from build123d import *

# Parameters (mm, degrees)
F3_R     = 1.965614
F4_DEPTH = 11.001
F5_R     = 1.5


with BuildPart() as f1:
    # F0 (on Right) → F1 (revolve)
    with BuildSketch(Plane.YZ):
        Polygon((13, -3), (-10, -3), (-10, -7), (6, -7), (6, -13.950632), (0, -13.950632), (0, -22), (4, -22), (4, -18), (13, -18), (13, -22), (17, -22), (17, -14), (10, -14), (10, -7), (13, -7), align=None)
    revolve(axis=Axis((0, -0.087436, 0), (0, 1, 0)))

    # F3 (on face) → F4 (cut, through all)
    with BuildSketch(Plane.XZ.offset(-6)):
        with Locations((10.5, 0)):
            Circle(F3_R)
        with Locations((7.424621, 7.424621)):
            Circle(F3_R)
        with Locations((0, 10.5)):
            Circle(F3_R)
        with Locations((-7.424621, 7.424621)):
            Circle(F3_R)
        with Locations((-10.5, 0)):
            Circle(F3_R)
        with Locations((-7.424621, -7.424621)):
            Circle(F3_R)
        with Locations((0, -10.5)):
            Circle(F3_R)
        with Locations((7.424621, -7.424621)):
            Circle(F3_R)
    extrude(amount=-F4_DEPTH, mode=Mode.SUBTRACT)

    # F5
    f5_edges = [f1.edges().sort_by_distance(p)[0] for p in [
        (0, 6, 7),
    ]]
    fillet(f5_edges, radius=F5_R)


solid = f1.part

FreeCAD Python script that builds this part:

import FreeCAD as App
import Part
import Sketcher
Q = App.Units.Quantity


def edges_at(feature, points):
    """Names of the edges that pass closest to the given points."""
    edges = feature.Shape.Edges
    near = lambda p: min(range(len(edges)), key=lambda i: edges[i].distToShape(Part.Vertex(*p))[0])
    return sorted({f"Edge{near(p) + 1}" for p in points})

doc = App.newDocument("Part")
body = doc.addObject("PartDesign::Body", "Body")

# Sketch on YZ plane
sketch1 = body.newObject("Sketcher::SketchObject", "Sketch")
sketch1.AttachmentSupport = (doc.getObject("YZ_Plane"), [""])
sketch1.MapMode = "FlatFace"
sketch1.addGeometry([
    Part.LineSegment(App.Vector(13, -3, 0), App.Vector(-10, -3, 0)),  # 0
    Part.LineSegment(App.Vector(-10, -3, 0), App.Vector(-10, -7, 0)),  # 1
    Part.LineSegment(App.Vector(-10, -7, 0), App.Vector(6, -7, 0)),  # 2
    Part.LineSegment(App.Vector(6, -7, 0), App.Vector(6, -14, 0)),  # 3
    Part.LineSegment(App.Vector(6, -14, 0), App.Vector(0, -14, 0)),  # 4
    Part.LineSegment(App.Vector(0, -14, 0), App.Vector(0, -22, 0)),  # 5
    Part.LineSegment(App.Vector(0, -22, 0), App.Vector(4, -22, 0)),  # 6
    Part.LineSegment(App.Vector(4, -22, 0), App.Vector(4, -18, 0)),  # 7
    Part.LineSegment(App.Vector(4, -18, 0), App.Vector(13, -18, 0)),  # 8
    Part.LineSegment(App.Vector(13, -18, 0), App.Vector(13, -22, 0)),  # 9
    Part.LineSegment(App.Vector(13, -22, 0), App.Vector(17, -22, 0)),  # 10
    Part.LineSegment(App.Vector(17, -22, 0), App.Vector(17, -14, 0)),  # 11
    Part.LineSegment(App.Vector(17, -14, 0), App.Vector(10, -14, 0)),  # 12
    Part.LineSegment(App.Vector(10, -14, 0), App.Vector(10, -7, 0)),  # 13
    Part.LineSegment(App.Vector(10, -7, 0), App.Vector(13, -7, 0)),  # 14
    Part.LineSegment(App.Vector(13, -7, 0), App.Vector(13, -3, 0)),  # 15
], False)
sketch1.addConstraint([
    Sketcher.Constraint("Coincident", 0, 2, 1, 1),
    Sketcher.Constraint("Coincident", 1, 2, 2, 1),
    Sketcher.Constraint("Coincident", 2, 2, 3, 1),
    Sketcher.Constraint("Coincident", 3, 2, 4, 1),
    Sketcher.Constraint("Coincident", 4, 2, 5, 1),
    Sketcher.Constraint("Coincident", 5, 2, 6, 1),
    Sketcher.Constraint("Coincident", 6, 2, 7, 1),
    Sketcher.Constraint("Coincident", 7, 2, 8, 1),
    Sketcher.Constraint("Coincident", 8, 2, 9, 1),
    Sketcher.Constraint("Coincident", 9, 2, 10, 1),
    Sketcher.Constraint("Coincident", 10, 2, 11, 1),
    Sketcher.Constraint("Coincident", 11, 2, 12, 1),
    Sketcher.Constraint("Coincident", 12, 2, 13, 1),
    Sketcher.Constraint("Coincident", 13, 2, 14, 1),
    Sketcher.Constraint("Coincident", 14, 2, 15, 1),
    Sketcher.Constraint("Coincident", 15, 2, 0, 1),
    Sketcher.Constraint("Horizontal", 0),
    Sketcher.Constraint("Vertical", 1),
    Sketcher.Constraint("Horizontal", 2),
    Sketcher.Constraint("Vertical", 3),
    Sketcher.Constraint("Horizontal", 4),
    Sketcher.Constraint("Vertical", 5),
    Sketcher.Constraint("Horizontal", 6),
    Sketcher.Constraint("Vertical", 7),
    Sketcher.Constraint("Horizontal", 8),
    Sketcher.Constraint("Vertical", 9),
    Sketcher.Constraint("Horizontal", 10),
    Sketcher.Constraint("Vertical", 11),
    Sketcher.Constraint("Horizontal", 12),
    Sketcher.Constraint("Vertical", 13),
    Sketcher.Constraint("Horizontal", 14),
    Sketcher.Constraint("Vertical", 15),
    Sketcher.Constraint("Symmetric", 1, 2, 13, 2, -2),
    Sketcher.Constraint("PointOnObject", 4, 2, -2),
    Sketcher.Constraint("Horizontal", 6, 2, 9, 2),
    Sketcher.Constraint("Vertical", 9, 2, 14, 2),
    Sketcher.Constraint("Equal", 6, 10),
    Sketcher.Constraint("Equal", 10, 1),
    Sketcher.Constraint("Equal", 1, 7),
    Sketcher.Constraint("Equal", 12, 13),
    Sketcher.Constraint("DistanceX", 0, 2, 0, 1, Q("23 mm")),
    Sketcher.Constraint("DistanceX", 2, 1, 2, 2, Q("16 mm")),
    Sketcher.Constraint("DistanceX", 4, 2, 4, 1, Q("6 mm")),
    Sketcher.Constraint("DistanceX", 6, 1, 6, 2, Q("4 mm")),
    Sketcher.Constraint("DistanceY", 11, 1, 11, 2, Q("8 mm")),
    Sketcher.Constraint("DistanceY", 0, 2, -1, 1, Q("3 mm")),
    Sketcher.Constraint("DistanceY", 3, 2, 3, 1, Q("6.950632 mm")),
])
revolution = body.newObject("PartDesign::Revolution", "Revolution")
revolution.Profile = sketch1
revolution.ReferenceAxis = (sketch1, ["H_Axis"])
revolution.Angle = 360

# Sketch on XZ plane
sketch2 = body.newObject("Sketcher::SketchObject", "Sketch001")
sketch2.AttachmentSupport = (doc.getObject("XZ_Plane"), [""])
sketch2.MapMode = "FlatFace"
sketch2.AttachmentOffset = App.Placement(App.Vector(0, 0, -6), App.Rotation())
sketch2.addGeometry([
    Part.Circle(App.Vector(10.5, 0, 0), App.Vector(0, 0, 1), 2),  # 0
    Part.Circle(App.Vector(7.4, 7.4, 0), App.Vector(0, 0, 1), 2),  # 1
    Part.Circle(App.Vector(0, 10.5, 0), App.Vector(0, 0, 1), 2),  # 2
    Part.Circle(App.Vector(-7.4, 7.4, 0), App.Vector(0, 0, 1), 2),  # 3
    Part.Circle(App.Vector(-10.5, 0, 0), App.Vector(0, 0, 1), 2),  # 4
    Part.Circle(App.Vector(-7.4, -7.4, 0), App.Vector(0, 0, 1), 2),  # 5
    Part.Circle(App.Vector(0, -10.5, 0), App.Vector(0, 0, 1), 2),  # 6
    Part.Circle(App.Vector(7.4, -7.4, 0), App.Vector(0, 0, 1), 2),  # 7
], False)
sketch2.addConstraint([
    Sketcher.Constraint("Equal", 0, 1),
    Sketcher.Constraint("Equal", 1, 2),
    Sketcher.Constraint("Equal", 2, 3),
    Sketcher.Constraint("Equal", 3, 4),
    Sketcher.Constraint("Equal", 4, 5),
    Sketcher.Constraint("Equal", 5, 6),
    Sketcher.Constraint("Equal", 6, 7),
    Sketcher.Constraint("Symmetric", 0, 3, 4, 3, -1, 1),
    Sketcher.Constraint("Symmetric", 1, 3, 5, 3, -1, 1),
    Sketcher.Constraint("Symmetric", 2, 3, 6, 3, -1, 1),
    Sketcher.Constraint("Symmetric", 3, 3, 7, 3, -1, 1),
    Sketcher.Constraint("Symmetric", 1, 3, 3, 3, -2),
    Sketcher.Constraint("PointOnObject", 0, 3, -1),
    Sketcher.Constraint("PointOnObject", 2, 3, -2),
    Sketcher.Constraint("DistanceX", 4, 3, 0, 3, Q("21 mm")),
    Sketcher.Constraint("DistanceY", -1, 1, 2, 3, Q("10.5 mm")),
    Sketcher.Constraint("Diameter", 0, Q("3.931228 mm")),
    Sketcher.Constraint("DistanceX", -1, 1, 1, 3, Q("7.424621 mm")),
    Sketcher.Constraint("DistanceY", -1, 1, 1, 3, Q("7.424621 mm")),
])
pocket1 = body.newObject("PartDesign::Pocket", "Pocket")
pocket1.Profile = sketch2
pocket1.Type = "ThroughAll"
doc.recompute()

fillet = body.newObject("PartDesign::Fillet", "Fillet")
fillet.Base = (pocket1, edges_at(pocket1, [(0, 6, 7)]))
fillet.Radius = 1.5

doc.recompute()
